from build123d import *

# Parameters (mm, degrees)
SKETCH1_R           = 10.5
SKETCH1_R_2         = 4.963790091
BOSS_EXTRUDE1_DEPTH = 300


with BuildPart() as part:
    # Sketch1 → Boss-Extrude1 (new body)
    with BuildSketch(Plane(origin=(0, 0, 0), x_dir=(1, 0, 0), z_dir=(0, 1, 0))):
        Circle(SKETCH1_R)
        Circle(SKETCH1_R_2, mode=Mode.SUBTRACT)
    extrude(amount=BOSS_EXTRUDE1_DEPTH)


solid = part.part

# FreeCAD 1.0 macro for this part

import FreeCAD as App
import Part
import Sketcher

V = App.Vector
Q = App.Units.Quantity

doc = App.newDocument("Part")
body = doc.addObject("PartDesign::Body", "Body")

# Sketch on XZ plane
sketch1 = doc.addObject("Sketcher::SketchObject", "Sketch")
body.addObject(sketch1)
sketch1.AttachmentSupport = (doc.XZ_Plane, [""])
sketch1.MapMode = "FlatFace"
sketch1.addGeometry(Part.Circle(V(0, 0, 0), V(0, 0, 1), 10.5), False)
sketch1.addGeometry(Part.Circle(V(0, 0, 0), V(0, 0, 1), 4.96379), False)
sketch1.addConstraint(Sketcher.Constraint("Coincident", 0, 3, -1, 1))
sketch1.addConstraint(Sketcher.Constraint("Coincident", 1, 3, -1, 1))
sketch1.addConstraint(Sketcher.Constraint("Diameter", 0, Q("21 mm")))
sketch1.addConstraint(Sketcher.Constraint("Diameter", 1, Q("9.92758 mm")))
pad1 = doc.addObject("PartDesign::Pad", "Pad")
body.addObject(pad1)
pad1.Profile = sketch1
pad1.Length = 300
pad1.Reversed = True

doc.recompute()
